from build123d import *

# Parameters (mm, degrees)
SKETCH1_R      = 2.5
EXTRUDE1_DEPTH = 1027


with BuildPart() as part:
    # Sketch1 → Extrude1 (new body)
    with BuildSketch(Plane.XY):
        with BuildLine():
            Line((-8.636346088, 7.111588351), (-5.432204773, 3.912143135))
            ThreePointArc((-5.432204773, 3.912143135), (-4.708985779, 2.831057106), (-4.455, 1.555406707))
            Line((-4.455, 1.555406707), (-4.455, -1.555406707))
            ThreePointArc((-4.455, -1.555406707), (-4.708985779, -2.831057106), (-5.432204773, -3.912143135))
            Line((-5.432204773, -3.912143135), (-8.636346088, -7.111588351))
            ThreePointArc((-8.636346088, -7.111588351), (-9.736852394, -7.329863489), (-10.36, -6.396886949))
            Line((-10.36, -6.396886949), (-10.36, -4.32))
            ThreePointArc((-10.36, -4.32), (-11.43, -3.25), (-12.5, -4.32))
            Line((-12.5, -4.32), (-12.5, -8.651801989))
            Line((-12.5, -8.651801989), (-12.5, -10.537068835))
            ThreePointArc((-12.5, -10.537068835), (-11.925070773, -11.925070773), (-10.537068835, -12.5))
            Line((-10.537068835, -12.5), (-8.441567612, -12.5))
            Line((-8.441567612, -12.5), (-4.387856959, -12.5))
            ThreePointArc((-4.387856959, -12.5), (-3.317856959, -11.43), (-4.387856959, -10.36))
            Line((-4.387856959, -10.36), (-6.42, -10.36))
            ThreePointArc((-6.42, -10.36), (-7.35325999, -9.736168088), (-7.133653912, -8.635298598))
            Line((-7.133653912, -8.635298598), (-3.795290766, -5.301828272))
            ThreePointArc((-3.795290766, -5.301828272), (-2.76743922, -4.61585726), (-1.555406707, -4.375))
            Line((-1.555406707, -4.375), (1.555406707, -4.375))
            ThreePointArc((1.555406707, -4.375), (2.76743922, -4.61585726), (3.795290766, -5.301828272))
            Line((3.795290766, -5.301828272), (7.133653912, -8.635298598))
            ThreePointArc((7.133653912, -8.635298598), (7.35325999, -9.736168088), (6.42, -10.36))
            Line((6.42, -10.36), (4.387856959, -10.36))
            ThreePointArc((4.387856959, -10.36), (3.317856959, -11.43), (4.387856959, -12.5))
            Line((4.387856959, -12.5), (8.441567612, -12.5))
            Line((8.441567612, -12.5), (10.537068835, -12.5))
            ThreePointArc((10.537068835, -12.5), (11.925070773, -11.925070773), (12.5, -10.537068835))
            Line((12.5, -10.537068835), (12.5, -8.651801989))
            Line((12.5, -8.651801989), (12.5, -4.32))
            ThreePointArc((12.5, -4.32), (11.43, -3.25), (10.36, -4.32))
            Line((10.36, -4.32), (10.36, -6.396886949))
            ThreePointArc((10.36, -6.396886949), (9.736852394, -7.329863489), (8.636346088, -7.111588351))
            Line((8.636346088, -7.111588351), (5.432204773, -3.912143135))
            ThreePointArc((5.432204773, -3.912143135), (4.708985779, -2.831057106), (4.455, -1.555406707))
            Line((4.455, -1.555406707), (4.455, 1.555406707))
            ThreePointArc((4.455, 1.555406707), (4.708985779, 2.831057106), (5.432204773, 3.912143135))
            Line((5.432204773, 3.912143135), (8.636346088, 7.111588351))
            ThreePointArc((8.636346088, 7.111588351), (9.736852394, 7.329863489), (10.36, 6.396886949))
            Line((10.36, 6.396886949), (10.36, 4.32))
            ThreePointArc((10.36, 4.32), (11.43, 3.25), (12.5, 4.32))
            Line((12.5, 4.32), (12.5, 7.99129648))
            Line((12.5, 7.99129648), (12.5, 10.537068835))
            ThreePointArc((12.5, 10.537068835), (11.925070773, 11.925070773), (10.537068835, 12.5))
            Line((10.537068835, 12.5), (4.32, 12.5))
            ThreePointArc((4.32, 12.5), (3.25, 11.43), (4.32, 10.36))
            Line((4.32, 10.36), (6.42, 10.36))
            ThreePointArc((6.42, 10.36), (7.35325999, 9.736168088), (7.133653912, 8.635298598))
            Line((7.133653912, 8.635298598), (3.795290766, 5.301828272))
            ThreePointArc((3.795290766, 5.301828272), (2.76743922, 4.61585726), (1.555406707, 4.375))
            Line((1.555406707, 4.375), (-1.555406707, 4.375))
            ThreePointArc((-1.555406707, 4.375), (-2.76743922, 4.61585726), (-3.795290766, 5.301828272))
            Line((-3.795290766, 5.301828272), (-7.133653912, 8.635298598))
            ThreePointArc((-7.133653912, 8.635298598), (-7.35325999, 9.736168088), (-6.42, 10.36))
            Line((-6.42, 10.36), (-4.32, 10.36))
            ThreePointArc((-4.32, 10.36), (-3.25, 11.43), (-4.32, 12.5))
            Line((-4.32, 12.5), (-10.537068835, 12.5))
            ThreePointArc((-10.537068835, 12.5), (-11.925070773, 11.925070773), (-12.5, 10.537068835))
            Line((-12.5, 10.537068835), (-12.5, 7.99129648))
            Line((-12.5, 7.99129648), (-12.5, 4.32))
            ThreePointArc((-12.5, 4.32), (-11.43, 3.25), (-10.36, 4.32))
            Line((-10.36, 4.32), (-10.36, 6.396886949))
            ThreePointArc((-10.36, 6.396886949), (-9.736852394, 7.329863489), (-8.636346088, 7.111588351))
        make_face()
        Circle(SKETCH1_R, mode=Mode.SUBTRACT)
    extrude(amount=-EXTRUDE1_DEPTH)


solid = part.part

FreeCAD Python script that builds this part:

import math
import FreeCAD as App
import Part
import Sketcher

V = App.Vector
Q = App.Units.Quantity

doc = App.newDocument("Part")
body = doc.addObject("PartDesign::Body", "Body")

sketch1 = body.newObject("Sketcher::SketchObject", "Sketch")
sketch1.AttachmentSupport = (doc.getObject("XY_Plane"), [""])
sketch1.MapMode = "FlatFace"
sketch1.addGeometry([
    Part.LineSegment(V(-8.6, 7.1, 0), V(-5.4, 3.9, 0)),
    Part.ArcOfCircle(Part.Circle(V(-7.8, 1.6, 0), V(0, 0, 1), 3.3), math.radians(0), math.radians(45)),
    Part.LineSegment(V(-4.5, 1.6, 0), V(-4.5, -1.6, 0)),
    Part.ArcOfCircle(Part.Circle(V(-7.8, -1.6, 0), V(0, 0, 1), 3.3), math.radians(-45), math.radians(0)),
    Part.LineSegment(V(-5.4, -3.9, 0), V(-8.6, -7.1, 0)),
    Part.ArcOfCircle(Part.Circle(V(-9.3, -6.4, 0), V(0, 0, 1), 1), math.radians(-180), math.radians(-45)),
    Part.LineSegment(V(-10.4, -6.4, 0), V(-10.4, -4.3, 0)),
    Part.ArcOfCircle(Part.Circle(V(-11.4, -4.3, 0), V(0, 0, 1), 1.1), math.radians(0), math.radians(180)),
    Part.LineSegment(V(-12.5, -4.3, 0), V(-12.5, -10.5, 0)),
    Part.ArcOfCircle(Part.Circle(V(-10.5, -10.5, 0), V(0, 0, 1), 2), math.radians(180), math.radians(270)),
    Part.LineSegment(V(-10.5, -12.5, 0), V(-4.4, -12.5, 0)),
    Part.ArcOfCircle(Part.Circle(V(-4.4, -11.4, 0), V(0, 0, 1), 1.1), math.radians(-90), math.radians(90)),
    Part.LineSegment(V(-4.4, -10.4, 0), V(-6.4, -10.4, 0)),
    Part.ArcOfCircle(Part.Circle(V(-6.4, -9.3, 0), V(0, 0, 1), 1), math.radians(135), math.radians(270)),
    Part.LineSegment(V(-7.1, -8.6, 0), V(-3.8, -5.3, 0)),
    Part.ArcOfCircle(Part.Circle(V(-1.6, -7.5, 0), V(0, 0, 1), 3.2), math.radians(90), math.radians(135)),
    Part.LineSegment(V(-1.6, -4.4, 0), V(1.6, -4.4, 0)),
    Part.ArcOfCircle(Part.Circle(V(1.6, -7.5, 0), V(0, 0, 1), 3.2), math.radians(45), math.radians(90)),
    Part.LineSegment(V(3.8, -5.3, 0), V(7.1, -8.6, 0)),
    Part.ArcOfCircle(Part.Circle(V(6.4, -9.3, 0), V(0, 0, 1), 1), math.radians(-90), math.radians(45)),
    Part.LineSegment(V(6.4, -10.4, 0), V(4.4, -10.4, 0)),
    Part.ArcOfCircle(Part.Circle(V(4.4, -11.4, 0), V(0, 0, 1), 1.1), math.radians(90), math.radians(270)),
    Part.LineSegment(V(4.4, -12.5, 0), V(10.5, -12.5, 0)),
    Part.ArcOfCircle(Part.Circle(V(10.5, -10.5, 0), V(0, 0, 1), 2), math.radians(-90), math.radians(0)),
    Part.LineSegment(V(12.5, -10.5, 0), V(12.5, -4.3, 0)),
    Part.ArcOfCircle(Part.Circle(V(11.4, -4.3, 0), V(0, 0, 1), 1.1), math.radians(0), math.radians(180)),
    Part.LineSegment(V(10.4, -4.3, 0), V(10.4, -6.4, 0)),
    Part.ArcOfCircle(Part.Circle(V(9.3, -6.4, 0), V(0, 0, 1), 1), math.radians(-135), math.radians(0)),
    Part.LineSegment(V(8.6, -7.1, 0), V(5.4, -3.9, 0)),
    Part.ArcOfCircle(Part.Circle(V(7.8, -1.6, 0), V(0, 0, 1), 3.3), math.radians(180), math.radians(225)),
    Part.LineSegment(V(4.5, -1.6, 0), V(4.5, 1.6, 0)),
    Part.ArcOfCircle(Part.Circle(V(7.8, 1.6, 0), V(0, 0, 1), 3.3), math.radians(135), math.radians(180)),
    Part.LineSegment(V(5.4, 3.9, 0), V(8.6, 7.1, 0)),
    Part.ArcOfCircle(Part.Circle(V(9.3, 6.4, 0), V(0, 0, 1), 1), math.radians(0), math.radians(135)),
    Part.LineSegment(V(10.4, 6.4, 0), V(10.4, 4.3, 0)),
    Part.ArcOfCircle(Part.Circle(V(11.4, 4.3, 0), V(0, 0, 1), 1.1), math.radians(180), math.radians(360)),
    Part.LineSegment(V(12.5, 4.3, 0), V(12.5, 10.5, 0)),
    Part.ArcOfCircle(Part.Circle(V(10.5, 10.5, 0), V(0, 0, 1), 2), math.radians(0), math.radians(90)),
    Part.LineSegment(V(10.5, 12.5, 0), V(4.3, 12.5, 0)),
    Part.ArcOfCircle(Part.Circle(V(4.3, 11.4, 0), V(0, 0, 1), 1.1), math.radians(90), math.radians(270)),
    Part.LineSegment(V(4.3, 10.4, 0), V(6.4, 10.4, 0)),
    Part.ArcOfCircle(Part.Circle(V(6.4, 9.3, 0), V(0, 0, 1), 1), math.radians(-45), math.radians(90)),
    Part.LineSegment(V(7.1, 8.6, 0), V(3.8, 5.3, 0)),
    Part.ArcOfCircle(Part.Circle(V(1.6, 7.5, 0), V(0, 0, 1), 3.2), math.radians(-90), math.radians(-45)),
    Part.LineSegment(V(1.6, 4.4, 0), V(-1.6, 4.4, 0)),
    Part.ArcOfCircle(Part.Circle(V(-1.6, 7.5, 0), V(0, 0, 1), 3.2), math.radians(-135), math.radians(-90)),
    Part.LineSegment(V(-3.8, 5.3, 0), V(-7.1, 8.6, 0)),
    Part.ArcOfCircle(Part.Circle(V(-6.4, 9.3, 0), V(0, 0, 1), 1), math.radians(90), math.radians(225)),
    Part.LineSegment(V(-6.4, 10.4, 0), V(-4.3, 10.4, 0)),
    Part.ArcOfCircle(Part.Circle(V(-4.3, 11.4, 0), V(0, 0, 1), 1.1), math.radians(-90), math.radians(90)),
    Part.LineSegment(V(-4.3, 12.5, 0), V(-10.5, 12.5, 0)),
    Part.ArcOfCircle(Part.Circle(V(-10.5, 10.5, 0), V(0, 0, 1), 2), math.radians(90), math.radians(180)),
    Part.LineSegment(V(-12.5, 10.5, 0), V(-12.5, 4.3, 0)),
    Part.ArcOfCircle(Part.Circle(V(-11.4, 4.3, 0), V(0, 0, 1), 1.1), math.radians(180), math.radians(360)),
    Part.LineSegment(V(-10.4, 4.3, 0), V(-10.4, 6.4, 0)),
    Part.ArcOfCircle(Part.Circle(V(-9.3, 6.4, 0), V(0, 0, 1), 1), math.radians(45), math.radians(180)),
    Part.Circle(V(0, 0, 0), V(0, 0, 1), 2.5),
], False)
sketch1.addConstraint([
    Sketcher.Constraint("Tangent", 0, 2, 1, 2),
    Sketcher.Constraint("Tangent", 1, 1, 2, 1),
    Sketcher.Constraint("Tangent", 2, 2, 3, 2),
    Sketcher.Constraint("Tangent", 3, 1, 4, 1),
    Sketcher.Constraint("Tangent", 4, 2, 5, 2),
    Sketcher.Constraint("Tangent", 5, 1, 6, 1),
    Sketcher.Constraint("Tangent", 6, 2, 7, 1),
    Sketcher.Constraint("Tangent", 7, 2, 8, 1),
    Sketcher.Constraint("Tangent", 8, 2, 9, 1),
    Sketcher.Constraint("Tangent", 9, 2, 10, 1),
    Sketcher.Constraint("Tangent", 10, 2, 11, 1),
    Sketcher.Constraint("Tangent", 11, 2, 12, 1),
    Sketcher.Constraint("Tangent", 12, 2, 13, 2),
    Sketcher.Constraint("Tangent", 13, 1, 14, 1),
    Sketcher.Constraint("Tangent", 14, 2, 15, 2),
    Sketcher.Constraint("Tangent", 15, 1, 16, 1),
    Sketcher.Constraint("Tangent", 16, 2, 17, 2),
    Sketcher.Constraint("Tangent", 17, 1, 18, 1),
    Sketcher.Constraint("Tangent", 18, 2, 19, 2),
    Sketcher.Constraint("Tangent", 19, 1, 20, 1),
    Sketcher.Constraint("Tangent", 20, 2, 21, 1),
    Sketcher.Constraint("Tangent", 21, 2, 22, 1),
    Sketcher.Constraint("Tangent", 22, 2, 23, 1),
    Sketcher.Constraint("Tangent", 23, 2, 24, 1),
    Sketcher.Constraint("Tangent", 24, 2, 25, 1),
    Sketcher.Constraint("Tangent", 25, 2, 26, 1),
    Sketcher.Constraint("Tangent", 26, 2, 27, 2),
    Sketcher.Constraint("Tangent", 27, 1, 28, 1),
    Sketcher.Constraint("Tangent", 28, 2, 29, 2),
    Sketcher.Constraint("Tangent", 29, 1, 30, 1),
    Sketcher.Constraint("Tangent", 30, 2, 31, 2),
    Sketcher.Constraint("Tangent", 31, 1, 32, 1),
    Sketcher.Constraint("Tangent", 32, 2, 33, 2),
    Sketcher.Constraint("Tangent", 33, 1, 34, 1),
    Sketcher.Constraint("Tangent", 34, 2, 35, 1),
    Sketcher.Constraint("Tangent", 35, 2, 36, 1),
    Sketcher.Constraint("Tangent", 36, 2, 37, 1),
    Sketcher.Constraint("Tangent", 37, 2, 38, 1),
    Sketcher.Constraint("Tangent", 38, 2, 39, 1),
    Sketcher.Constraint("Tangent", 39, 2, 40, 1),
    Sketcher.Constraint("Tangent", 40, 2, 41, 2),
    Sketcher.Constraint("Tangent", 41, 1, 42, 1),
    Sketcher.Constraint("Tangent", 42, 2, 43, 2),
    Sketcher.Constraint("Tangent", 43, 1, 44, 1),
    Sketcher.Constraint("Tangent", 44, 2, 45, 2),
    Sketcher.Constraint("Tangent", 45, 1, 46, 1),
    Sketcher.Constraint("Tangent", 46, 2, 47, 2),
    Sketcher.Constraint("Tangent", 47, 1, 48, 1),
    Sketcher.Constraint("Tangent", 48, 2, 49, 1),
    Sketcher.Constraint("Tangent", 49, 2, 50, 1),
    Sketcher.Constraint("Tangent", 50, 2, 51, 1),
    Sketcher.Constraint("Tangent", 51, 2, 52, 1),
    Sketcher.Constraint("Tangent", 52, 2, 53, 1),
    Sketcher.Constraint("Tangent", 53, 2, 54, 1),
    Sketcher.Constraint("Tangent", 54, 2, 55, 2),
    Sketcher.Constraint("Tangent", 55, 1, 0, 1),
    Sketcher.Constraint("Vertical", 2),
    Sketcher.Constraint("Vertical", 6),
    Sketcher.Constraint("Vertical", 8),
    Sketcher.Constraint("Horizontal", 10),
    Sketcher.Constraint("Horizontal", 12),
    Sketcher.Constraint("Horizontal", 16),
    Sketcher.Constraint("Horizontal", 20),
    Sketcher.Constraint("Horizontal", 22),
    Sketcher.Constraint("Vertical", 24),
    Sketcher.Constraint("Vertical", 26),
    Sketcher.Constraint("Vertical", 30),
    Sketcher.Constraint("Vertical", 34),
    Sketcher.Constraint("Vertical", 36),
    Sketcher.Constraint("Horizontal", 38),
    Sketcher.Constraint("Horizontal", 40),
    Sketcher.Constraint("Horizontal", 44),
    Sketcher.Constraint("Horizontal", 48),
    Sketcher.Constraint("Horizontal", 50),
    Sketcher.Constraint("Vertical", 52),
    Sketcher.Constraint("Vertical", 54),
    Sketcher.Constraint("Coincident", 56, 3, -1, 1),
    Sketcher.Constraint("Equal", 1, 3),
    Sketcher.Constraint("Equal", 7, 11),
    Sketcher.Constraint("Equal", 5, 13),
    Sketcher.Constraint("Equal", 15, 17),
    Sketcher.Constraint("Equal", 13, 19),
    Sketcher.Constraint("Equal", 11, 21),
    Sketcher.Constraint("Equal", 9, 23),
    Sketcher.Constraint("Equal", 21, 25),
    Sketcher.Constraint("Equal", 19, 27),
    Sketcher.Constraint("Equal", 3, 29),
    Sketcher.Constraint("Equal", 29, 31),
    Sketcher.Constraint("Equal", 27, 33),
    Sketcher.Constraint("Equal", 25, 35),
    Sketcher.Constraint("Equal", 23, 37),
    Sketcher.Constraint("Equal", 35, 39),
    Sketcher.Constraint("Equal", 33, 41),
    Sketcher.Constraint("Equal", 17, 43),
    Sketcher.Constraint("Equal", 43, 45),
    Sketcher.Constraint("Equal", 41, 47),
    Sketcher.Constraint("Equal", 39, 49),
    Sketcher.Constraint("Equal", 37, 51),
    Sketcher.Constraint("Equal", 49, 53),
    Sketcher.Constraint("Equal", 47, 55),
    Sketcher.Constraint("Symmetric", 1, 3, 29, 3, -1, 1),
    Sketcher.Constraint("Symmetric", 5, 3, 33, 3, -1, 1),
    Sketcher.Constraint("Symmetric", 13, 3, 41, 3, -1, 1),
    Sketcher.Constraint("Symmetric", 15, 3, 43, 3, -1, 1),
    Sketcher.Constraint("Symmetric", 19, 3, 47, 3, -1, 1),
    Sketcher.Constraint("Symmetric", 25, 3, 53, 3, -1, 1),
    Sketcher.Constraint("Symmetric", 13, 3, 19, 3, -2),
    Sketcher.Constraint("Symmetric", 7, 3, 25, 3, -2),
    Sketcher.Constraint("Symmetric", 4, 2, 27, 1, -2),
    Sketcher.Constraint("Symmetric", 0, 2, 31, 1, -2),
    Sketcher.Constraint("Parallel", 4, 14),
    Sketcher.Constraint("Parallel", 0, 18),
    Sketcher.Constraint("Parallel", 28, 46),
    Sketcher.Constraint("Horizontal", 35, 3, 53, 3),
    Sketcher.Constraint("Equal", 12, 20),
    Sketcher.Constraint("Equal", 40, 48),
    Sketcher.Constraint("Equal", 44, 2),
    Sketcher.Constraint("Equal", 50, 8),
    Sketcher.Constraint("Diameter", 56, Q("5 mm")),
    Sketcher.Constraint("Radius", 5, Q("1.01 mm")),
    Sketcher.Constraint("Radius", 7, Q("1.07 mm")),
    Sketcher.Constraint("Radius", 15, Q("3.17 mm")),
    Sketcher.Constraint("DistanceX", 40, 1, 40, 2, Q("2.1 mm")),
    Sketcher.Constraint("DistanceX", 7, 2, -1, 1, Q("12.5 mm")),
    Sketcher.Constraint("DistanceY", 9, 2, -1, 1, Q("12.5 mm")),
    Sketcher.Constraint("DistanceY", 7, 3, -1, 1, Q("4.32 mm")),
    Sketcher.Constraint("Radius", 9, Q("1.962931 mm")),
    Sketcher.Constraint("DistanceY", 15, 3, -1, 1, Q("7.545 mm")),
    Sketcher.Constraint("DistanceX", 1, 1, -1, 1, Q("4.455 mm")),
    Sketcher.Constraint("Radius", 1, Q("3.330487 mm")),
    Sketcher.Constraint("Distance", 14, Q("4.7177 mm")),
    Sketcher.Constraint("DistanceX", 10, 1, 10, 2, Q("6.149212 mm")),
])
pad1 = body.newObject("PartDesign::Pad", "Pad")
pad1.Profile = sketch1
pad1.Length = 1027
pad1.Reversed = True

doc.recompute()
